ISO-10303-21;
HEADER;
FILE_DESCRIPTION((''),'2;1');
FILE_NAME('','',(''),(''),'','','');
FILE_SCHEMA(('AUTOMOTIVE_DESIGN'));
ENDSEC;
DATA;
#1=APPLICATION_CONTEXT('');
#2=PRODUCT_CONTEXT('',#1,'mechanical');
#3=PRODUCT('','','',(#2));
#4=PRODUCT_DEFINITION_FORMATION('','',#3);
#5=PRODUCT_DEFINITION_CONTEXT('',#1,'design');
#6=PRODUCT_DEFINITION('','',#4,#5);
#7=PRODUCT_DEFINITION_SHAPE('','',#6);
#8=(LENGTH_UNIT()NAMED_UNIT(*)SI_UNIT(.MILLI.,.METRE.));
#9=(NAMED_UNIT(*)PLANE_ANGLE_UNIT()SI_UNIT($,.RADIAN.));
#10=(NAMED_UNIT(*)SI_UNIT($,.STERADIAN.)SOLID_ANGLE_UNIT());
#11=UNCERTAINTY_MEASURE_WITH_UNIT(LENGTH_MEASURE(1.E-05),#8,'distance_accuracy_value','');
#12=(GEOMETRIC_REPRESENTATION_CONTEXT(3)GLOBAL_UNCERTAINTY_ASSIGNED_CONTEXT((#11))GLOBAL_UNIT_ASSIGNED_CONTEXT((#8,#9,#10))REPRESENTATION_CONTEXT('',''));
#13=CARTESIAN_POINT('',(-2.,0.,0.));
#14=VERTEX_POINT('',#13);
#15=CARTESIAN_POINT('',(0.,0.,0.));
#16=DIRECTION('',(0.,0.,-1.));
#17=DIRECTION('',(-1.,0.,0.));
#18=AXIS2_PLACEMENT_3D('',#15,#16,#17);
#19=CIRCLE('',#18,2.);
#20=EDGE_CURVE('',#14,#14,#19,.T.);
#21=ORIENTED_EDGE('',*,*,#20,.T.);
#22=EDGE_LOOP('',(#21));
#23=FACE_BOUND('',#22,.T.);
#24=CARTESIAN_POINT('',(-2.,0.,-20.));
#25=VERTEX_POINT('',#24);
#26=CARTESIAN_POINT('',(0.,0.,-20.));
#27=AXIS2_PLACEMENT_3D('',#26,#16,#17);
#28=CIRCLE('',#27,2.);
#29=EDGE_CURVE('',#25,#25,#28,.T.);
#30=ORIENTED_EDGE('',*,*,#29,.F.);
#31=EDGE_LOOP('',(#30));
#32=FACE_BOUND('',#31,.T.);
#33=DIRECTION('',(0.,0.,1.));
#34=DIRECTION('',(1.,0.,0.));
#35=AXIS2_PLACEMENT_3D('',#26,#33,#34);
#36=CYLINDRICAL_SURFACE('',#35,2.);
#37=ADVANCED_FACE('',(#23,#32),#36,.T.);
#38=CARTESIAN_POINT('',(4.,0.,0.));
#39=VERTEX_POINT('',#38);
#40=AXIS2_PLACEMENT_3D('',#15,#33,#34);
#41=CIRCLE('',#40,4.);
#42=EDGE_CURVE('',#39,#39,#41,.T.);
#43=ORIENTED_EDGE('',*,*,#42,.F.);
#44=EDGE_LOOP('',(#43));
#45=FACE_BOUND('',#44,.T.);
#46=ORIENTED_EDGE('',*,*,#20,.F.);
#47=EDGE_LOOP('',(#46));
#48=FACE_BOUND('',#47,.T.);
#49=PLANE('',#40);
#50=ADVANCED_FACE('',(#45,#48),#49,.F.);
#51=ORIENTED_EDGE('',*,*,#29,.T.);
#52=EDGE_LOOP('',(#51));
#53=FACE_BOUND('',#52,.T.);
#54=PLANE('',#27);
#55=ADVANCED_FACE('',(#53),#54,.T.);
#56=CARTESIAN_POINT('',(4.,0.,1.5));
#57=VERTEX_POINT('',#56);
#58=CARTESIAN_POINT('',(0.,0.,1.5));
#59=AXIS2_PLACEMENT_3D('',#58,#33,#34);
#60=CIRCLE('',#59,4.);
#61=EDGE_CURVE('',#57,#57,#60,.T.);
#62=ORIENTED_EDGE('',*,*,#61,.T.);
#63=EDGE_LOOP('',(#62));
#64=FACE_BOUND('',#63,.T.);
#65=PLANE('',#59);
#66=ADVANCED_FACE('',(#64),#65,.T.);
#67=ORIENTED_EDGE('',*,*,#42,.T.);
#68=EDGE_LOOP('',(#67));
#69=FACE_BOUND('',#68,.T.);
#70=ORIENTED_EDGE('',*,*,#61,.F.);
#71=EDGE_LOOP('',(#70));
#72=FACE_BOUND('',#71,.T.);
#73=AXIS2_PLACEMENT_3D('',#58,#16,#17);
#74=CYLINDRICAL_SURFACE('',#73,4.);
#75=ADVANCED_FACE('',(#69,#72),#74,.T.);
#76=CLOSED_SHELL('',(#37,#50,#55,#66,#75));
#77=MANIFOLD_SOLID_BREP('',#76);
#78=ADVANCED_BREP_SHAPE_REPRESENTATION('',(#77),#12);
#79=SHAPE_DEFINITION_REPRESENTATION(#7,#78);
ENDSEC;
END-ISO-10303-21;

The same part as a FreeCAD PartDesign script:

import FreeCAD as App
import Part
import Sketcher
Q = App.Units.Quantity

doc = App.newDocument("Part")
body = doc.addObject("PartDesign::Body", "Body")

# Sketch on XY plane
sketch1 = body.newObject("Sketcher::SketchObject", "Sketch")
sketch1.AttachmentSupport = (doc.getObject("XY_Plane"), [""])
sketch1.MapMode = "FlatFace"
sketch1.addGeometry(Part.Circle(App.Vector(0, 0, 0), App.Vector(0, 0, 1), 4), False)
sketch1.addConstraint(Sketcher.Constraint("Coincident", 0, 3, -1, 1))
sketch1.addConstraint(Sketcher.Constraint("Diameter", 0, Q("8 mm")))
pad1 = body.newObject("PartDesign::Pad", "Pad")
pad1.Profile = sketch1
pad1.Length = 1.5

# Sketch on XY plane
sketch2 = body.newObject("Sketcher::SketchObject", "Sketch001")
sketch2.AttachmentSupport = (doc.getObject("XY_Plane"), [""])
sketch2.MapMode = "FlatFace"
sketch2.addGeometry(Part.Circle(App.Vector(0, 0, 0), App.Vector(0, 0, 1), 2), False)
sketch2.addConstraint(Sketcher.Constraint("Coincident", 0, 3, -1, 1))
sketch2.addConstraint(Sketcher.Constraint("Diameter", 0, Q("4 mm")))
pad2 = body.newObject("PartDesign::Pad", "Pad001")
pad2.Profile = sketch2
pad2.Length = 20
pad2.Reversed = True

doc.recompute()
